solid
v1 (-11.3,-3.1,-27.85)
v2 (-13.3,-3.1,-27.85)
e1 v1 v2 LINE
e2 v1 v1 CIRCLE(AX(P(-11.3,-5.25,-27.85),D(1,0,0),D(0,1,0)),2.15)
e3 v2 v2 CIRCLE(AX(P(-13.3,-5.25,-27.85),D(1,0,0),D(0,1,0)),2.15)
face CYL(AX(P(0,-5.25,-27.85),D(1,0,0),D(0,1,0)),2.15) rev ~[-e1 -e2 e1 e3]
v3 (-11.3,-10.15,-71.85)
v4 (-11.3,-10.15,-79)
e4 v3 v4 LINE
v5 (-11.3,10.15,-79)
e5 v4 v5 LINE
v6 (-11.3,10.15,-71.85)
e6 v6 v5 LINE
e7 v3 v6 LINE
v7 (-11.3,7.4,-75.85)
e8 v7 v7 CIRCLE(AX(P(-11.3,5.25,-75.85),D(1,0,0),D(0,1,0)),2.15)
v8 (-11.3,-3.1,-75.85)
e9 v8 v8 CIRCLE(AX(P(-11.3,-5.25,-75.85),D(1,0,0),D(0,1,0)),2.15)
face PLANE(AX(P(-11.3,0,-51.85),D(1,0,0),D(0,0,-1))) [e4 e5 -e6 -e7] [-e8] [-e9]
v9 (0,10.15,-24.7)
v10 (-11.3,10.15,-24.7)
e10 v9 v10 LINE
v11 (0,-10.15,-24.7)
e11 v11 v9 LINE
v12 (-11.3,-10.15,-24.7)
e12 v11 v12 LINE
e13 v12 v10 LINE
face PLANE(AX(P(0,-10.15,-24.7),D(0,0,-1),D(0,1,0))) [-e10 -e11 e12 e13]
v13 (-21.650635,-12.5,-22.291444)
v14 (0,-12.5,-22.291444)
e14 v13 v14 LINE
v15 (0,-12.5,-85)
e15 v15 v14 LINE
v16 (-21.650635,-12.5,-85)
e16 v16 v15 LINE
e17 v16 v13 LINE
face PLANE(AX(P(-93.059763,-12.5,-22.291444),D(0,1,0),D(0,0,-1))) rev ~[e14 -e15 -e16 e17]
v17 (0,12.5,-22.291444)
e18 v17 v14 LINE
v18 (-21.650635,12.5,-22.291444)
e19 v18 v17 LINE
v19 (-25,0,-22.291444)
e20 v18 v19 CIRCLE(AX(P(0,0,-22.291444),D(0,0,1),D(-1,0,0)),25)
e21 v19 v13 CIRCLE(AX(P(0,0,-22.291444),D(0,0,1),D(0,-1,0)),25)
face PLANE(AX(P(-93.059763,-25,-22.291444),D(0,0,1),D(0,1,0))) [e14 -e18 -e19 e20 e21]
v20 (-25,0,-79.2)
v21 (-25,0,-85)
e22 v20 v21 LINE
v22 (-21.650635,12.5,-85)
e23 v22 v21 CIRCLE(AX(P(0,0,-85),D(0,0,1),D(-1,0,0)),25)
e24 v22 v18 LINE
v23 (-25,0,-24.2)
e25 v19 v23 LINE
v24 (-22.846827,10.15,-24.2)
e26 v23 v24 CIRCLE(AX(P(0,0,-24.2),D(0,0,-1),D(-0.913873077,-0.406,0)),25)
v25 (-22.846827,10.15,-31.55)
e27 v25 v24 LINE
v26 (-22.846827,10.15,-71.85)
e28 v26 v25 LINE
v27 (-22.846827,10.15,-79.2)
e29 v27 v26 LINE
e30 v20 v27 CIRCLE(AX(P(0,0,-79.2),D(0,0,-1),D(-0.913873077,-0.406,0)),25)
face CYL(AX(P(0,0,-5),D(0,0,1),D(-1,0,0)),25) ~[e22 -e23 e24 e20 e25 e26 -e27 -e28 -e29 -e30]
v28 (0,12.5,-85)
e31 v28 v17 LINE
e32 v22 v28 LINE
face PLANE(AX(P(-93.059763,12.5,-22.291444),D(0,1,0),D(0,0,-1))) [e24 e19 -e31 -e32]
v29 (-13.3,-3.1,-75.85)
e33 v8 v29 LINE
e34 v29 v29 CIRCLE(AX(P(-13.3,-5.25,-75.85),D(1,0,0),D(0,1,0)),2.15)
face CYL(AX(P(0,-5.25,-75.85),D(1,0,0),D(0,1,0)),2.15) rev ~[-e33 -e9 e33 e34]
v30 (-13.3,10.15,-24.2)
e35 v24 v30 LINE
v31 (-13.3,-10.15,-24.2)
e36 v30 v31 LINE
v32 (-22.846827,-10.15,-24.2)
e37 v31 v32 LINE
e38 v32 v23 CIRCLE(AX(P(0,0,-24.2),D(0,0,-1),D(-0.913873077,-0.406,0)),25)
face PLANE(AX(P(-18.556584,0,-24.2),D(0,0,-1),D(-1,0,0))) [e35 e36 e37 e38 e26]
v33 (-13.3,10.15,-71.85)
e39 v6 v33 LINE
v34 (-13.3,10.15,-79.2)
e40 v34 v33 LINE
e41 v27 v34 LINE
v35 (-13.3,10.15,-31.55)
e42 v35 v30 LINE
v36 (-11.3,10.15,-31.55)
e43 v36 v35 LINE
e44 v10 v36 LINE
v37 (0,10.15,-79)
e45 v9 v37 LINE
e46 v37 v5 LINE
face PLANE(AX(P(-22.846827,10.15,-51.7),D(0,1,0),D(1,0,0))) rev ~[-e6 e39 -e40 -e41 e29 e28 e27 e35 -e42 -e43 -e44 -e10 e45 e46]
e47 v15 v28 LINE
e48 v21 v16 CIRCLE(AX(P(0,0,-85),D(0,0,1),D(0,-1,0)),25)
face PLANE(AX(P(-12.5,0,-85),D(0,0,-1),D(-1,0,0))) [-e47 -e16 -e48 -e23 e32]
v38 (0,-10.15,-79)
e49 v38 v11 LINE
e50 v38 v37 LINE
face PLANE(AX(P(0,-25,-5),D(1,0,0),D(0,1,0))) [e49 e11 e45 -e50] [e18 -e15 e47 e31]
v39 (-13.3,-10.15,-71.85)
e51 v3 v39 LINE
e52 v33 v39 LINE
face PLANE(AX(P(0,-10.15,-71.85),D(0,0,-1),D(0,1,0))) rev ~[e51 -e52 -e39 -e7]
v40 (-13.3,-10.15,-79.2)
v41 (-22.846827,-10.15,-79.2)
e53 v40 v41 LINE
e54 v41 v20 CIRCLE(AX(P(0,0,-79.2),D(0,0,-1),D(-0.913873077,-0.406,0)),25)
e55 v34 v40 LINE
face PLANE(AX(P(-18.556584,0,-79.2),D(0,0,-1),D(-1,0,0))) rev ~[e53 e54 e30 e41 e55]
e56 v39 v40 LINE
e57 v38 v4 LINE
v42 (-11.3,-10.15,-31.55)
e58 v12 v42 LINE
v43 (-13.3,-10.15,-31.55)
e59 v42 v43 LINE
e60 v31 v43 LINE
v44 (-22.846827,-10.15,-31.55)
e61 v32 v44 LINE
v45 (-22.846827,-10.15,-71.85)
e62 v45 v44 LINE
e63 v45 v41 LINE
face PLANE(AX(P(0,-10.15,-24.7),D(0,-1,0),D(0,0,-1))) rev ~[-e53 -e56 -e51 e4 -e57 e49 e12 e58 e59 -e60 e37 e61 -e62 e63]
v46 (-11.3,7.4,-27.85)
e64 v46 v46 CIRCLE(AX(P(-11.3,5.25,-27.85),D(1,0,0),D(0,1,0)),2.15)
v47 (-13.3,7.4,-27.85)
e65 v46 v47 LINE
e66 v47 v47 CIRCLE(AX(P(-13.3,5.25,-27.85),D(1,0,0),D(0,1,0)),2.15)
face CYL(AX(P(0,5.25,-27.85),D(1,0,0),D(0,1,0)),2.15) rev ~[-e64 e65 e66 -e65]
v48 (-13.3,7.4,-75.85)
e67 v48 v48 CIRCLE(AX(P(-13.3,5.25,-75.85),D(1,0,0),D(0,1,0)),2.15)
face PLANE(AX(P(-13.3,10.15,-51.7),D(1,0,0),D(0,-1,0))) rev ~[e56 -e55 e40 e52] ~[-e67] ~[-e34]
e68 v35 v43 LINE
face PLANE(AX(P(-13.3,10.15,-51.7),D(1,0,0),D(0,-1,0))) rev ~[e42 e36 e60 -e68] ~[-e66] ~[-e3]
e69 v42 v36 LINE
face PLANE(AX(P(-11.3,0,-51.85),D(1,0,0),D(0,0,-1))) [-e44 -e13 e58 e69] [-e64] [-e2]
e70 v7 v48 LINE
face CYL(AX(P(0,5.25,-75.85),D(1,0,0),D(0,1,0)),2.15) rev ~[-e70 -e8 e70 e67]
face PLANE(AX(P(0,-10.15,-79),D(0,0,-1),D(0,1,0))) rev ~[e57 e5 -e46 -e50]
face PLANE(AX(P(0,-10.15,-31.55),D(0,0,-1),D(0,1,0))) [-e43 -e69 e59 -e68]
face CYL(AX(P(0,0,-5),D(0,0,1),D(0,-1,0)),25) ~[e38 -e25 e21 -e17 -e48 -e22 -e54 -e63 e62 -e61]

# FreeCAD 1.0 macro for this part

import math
import FreeCAD as App
import Part
import Sketcher
Q = App.Units.Quantity


def edges_at(feature, points):
    """Names of the edges that pass closest to the given points."""
    edges = feature.Shape.Edges
    near = lambda p: min(range(len(edges)), key=lambda i: edges[i].distToShape(Part.Vertex(*p))[0])
    return sorted({f"Edge{near(p) + 1}" for p in points})

doc = App.newDocument("Part")
body = doc.addObject("PartDesign::Body", "Body")

sketch1 = doc.addObject("Sketcher::SketchObject", "Sketch")
body.addObject(sketch1)
sketch1.AttachmentSupport = (doc.XY_Plane, [""])
sketch1.MapMode = "FlatFace"
sketch1.addGeometry([
    Part.Circle(App.Vector(0, 0, 0), App.Vector(0, 0, 1), 25),
    Part.LineSegment(App.Vector(14, -14, 0), App.Vector(-14, -14, 0)),
    Part.LineSegment(App.Vector(-14, -14, 0), App.Vector(-14, 14, 0)),
    Part.LineSegment(App.Vector(-14, 14, 0), App.Vector(14, 14, 0)),
    Part.LineSegment(App.Vector(14, 14, 0), App.Vector(14, -14, 0)),
], False)
sketch1.addConstraint([
    Sketcher.Constraint("Coincident", 1, 2, 2, 1),
    Sketcher.Constraint("Coincident", 2, 2, 3, 1),
    Sketcher.Constraint("Coincident", 3, 2, 4, 1),
    Sketcher.Constraint("Coincident", 4, 2, 1, 1),
    Sketcher.Constraint("Horizontal", 1),
    Sketcher.Constraint("Vertical", 2),
    Sketcher.Constraint("Horizontal", 3),
    Sketcher.Constraint("Vertical", 4),
    Sketcher.Constraint("Coincident", 0, 3, -1, 1),
    Sketcher.Constraint("Symmetric", 1, 2, 3, 2, -1, 1),
    Sketcher.Constraint("Equal", 3, 2),
    Sketcher.Constraint("Diameter", 0, Q("50 mm")),
    Sketcher.Constraint("DistanceX", 1, 2, 1, 1, Q("27.5 mm")),
])
pad1 = doc.addObject("PartDesign::Pad", "Pad")
body.addObject(pad1)
pad1.Profile = sketch1
pad1.Length = 55

sketch2 = doc.addObject("Sketcher::SketchObject", "Sketch001")
body.addObject(sketch2)
sketch2.AttachmentSupport = (doc.XY_Plane, [""])
sketch2.MapMode = "FlatFace"
sketch2.AttachmentOffset = App.Placement(App.Vector(0, 0, -5), App.Rotation())
sketch2.addGeometry(Part.Circle(App.Vector(0, 0, 0), App.Vector(0, 0, 1), 25), False)
sketch2.addConstraint([
    Sketcher.Constraint("Coincident", 0, 3, -1, 1),
    Sketcher.Constraint("Diameter", 0, Q("50 mm")),
])
pad2 = doc.addObject("PartDesign::Pad", "Pad001")
body.addObject(pad2)
pad2.Profile = sketch2
pad2.Length = 5

sketch3 = doc.addObject("Sketcher::SketchObject", "Sketch002")
body.addObject(sketch3)
sketch3.AttachmentSupport = (doc.XY_Plane, [""])
sketch3.MapMode = "FlatFace"
sketch3.AttachmentOffset = App.Placement(App.Vector(0, 0, -5), App.Rotation())
sketch3.addGeometry([
    Part.LineSegment(App.Vector(0, 25, 0), App.Vector(0, -25, 0)),
    Part.LineSegment(App.Vector(0, -25, 0), App.Vector(-25, -25, 0)),
    Part.LineSegment(App.Vector(-25, -25, 0), App.Vector(-25, 25, 0)),
    Part.LineSegment(App.Vector(-25, 25, 0), App.Vector(0, 25, 0)),
], False)
sketch3.addConstraint([
    Sketcher.Constraint("Coincident", 0, 2, 1, 1),
    Sketcher.Constraint("Coincident", 1, 2, 2, 1),
    Sketcher.Constraint("Coincident", 2, 2, 3, 1),
    Sketcher.Constraint("Coincident", 3, 2, 0, 1),
    Sketcher.Constraint("Vertical", 0),
    Sketcher.Constraint("Horizontal", 1),
    Sketcher.Constraint("Vertical", 2),
    Sketcher.Constraint("Horizontal", 3),
    Sketcher.Constraint("Symmetric", 0, 2, 3, 2, -1, 1),
    Sketcher.Constraint("DistanceX", 1, 2, 1, 1, Q("25 mm")),
    Sketcher.Constraint("DistanceY", 0, 2, 0, 1, Q("50 mm")),
])
pad3 = doc.addObject("PartDesign::Pad", "Pad002")
body.addObject(pad3)
pad3.Profile = sketch3
pad3.Length = 80
pad3.Reversed = True
doc.recompute()

fillet = doc.addObject("PartDesign::Fillet", "Fillet")
body.addObject(fillet)
fillet.Base = (pad3, edges_at(pad3, [
    (-13.75, 13.75, 27.5),
    (-13.75, -13.75, 27.5),
    (13.75, -13.75, 27.5),
    (13.75, 13.75, 27.5),
]))
fillet.Radius = 2.5
doc.recompute()

fillet2 = doc.addObject("PartDesign::Fillet", "Fillet001")
body.addObject(fillet2)
fillet2.Base = (fillet, edges_at(fillet, [
    (0, 13.75, 55),
    (-13.75, 0, 55),
    (0, -13.75, 55),
    (13.75, 0, 55),
    (-13.018, 13.018, 55),
    (-13.018, -13.018, 55),
    (13.018, -13.018, 55),
    (13.018, 13.018, 55),
]))
fillet2.Radius = 2.5

sketch4 = doc.addObject("Sketcher::SketchObject", "Sketch003")
body.addObject(sketch4)
sketch4.AttachmentSupport = (doc.YZ_Plane, [""])
sketch4.MapMode = "FlatFace"
sketch4.addGeometry([
    Part.LineSegment(App.Vector(10, -25, 0), App.Vector(-10, -25, 0)),
    Part.LineSegment(App.Vector(-10, -25, 0), App.Vector(-10, -79, 0)),
    Part.LineSegment(App.Vector(-10, -79, 0), App.Vector(10, -79, 0)),
    Part.LineSegment(App.Vector(10, -79, 0), App.Vector(10, -25, 0)),
], False)
sketch4.addConstraint([
    Sketcher.Constraint("Coincident", 0, 2, 1, 1),
    Sketcher.Constraint("Coincident", 1, 2, 2, 1),
    Sketcher.Constraint("Coincident", 2, 2, 3, 1),
    Sketcher.Constraint("Coincident", 3, 2, 0, 1),
    Sketcher.Constraint("Horizontal", 0),
    Sketcher.Constraint("Vertical", 1),
    Sketcher.Constraint("Horizontal", 2),
    Sketcher.Constraint("Vertical", 3),
    Sketcher.Constraint("DistanceX", 0, 2, 0, 1, Q("20.3 mm")),
    Sketcher.Constraint("DistanceY", 1, 2, 1, 1, Q("54.3 mm")),
    Sketcher.Constraint("DistanceY", 1, 2, -1, 1, Q("79 mm")),
    Sketcher.Constraint("DistanceX", 0, 2, -1, 1, Q("10.15 mm")),
])
pocket1 = doc.addObject("PartDesign::Pocket", "Pocket")
body.addObject(pocket1)
pocket1.Profile = sketch4
pocket1.Length = 11.3

sketch5 = doc.addObject("Sketcher::SketchObject", "Sketch004")
body.addObject(sketch5)
sketch5.AttachmentSupport = (doc.YZ_Plane, [""])
sketch5.MapMode = "FlatFace"
sketch5.addGeometry([
    Part.LineSegment(App.Vector(10, -32, 0), App.Vector(-10, -32, 0)),
    Part.LineSegment(App.Vector(-10, -32, 0), App.Vector(-10, -72, 0)),
    Part.LineSegment(App.Vector(-10, -72, 0), App.Vector(10, -72, 0)),
    Part.LineSegment(App.Vector(10, -72, 0), App.Vector(10, -32, 0)),
], False)
sketch5.addConstraint([
    Sketcher.Constraint("Coincident", 0, 2, 1, 1),
    Sketcher.Constraint("Coincident", 1, 2, 2, 1),
    Sketcher.Constraint("Coincident", 2, 2, 3, 1),
    Sketcher.Constraint("Coincident", 3, 2, 0, 1),
    Sketcher.Constraint("Horizontal", 0),
    Sketcher.Constraint("Vertical", 1),
    Sketcher.Constraint("Horizontal", 2),
    Sketcher.Constraint("Vertical", 3),
    Sketcher.Constraint("DistanceX", 0, 2, 0, 1, Q("20.3 mm")),
    Sketcher.Constraint("DistanceY", 1, 2, 1, 1, Q("40.3 mm")),
    Sketcher.Constraint("DistanceX", 0, 2, -1, 1, Q("10.15 mm")),
    Sketcher.Constraint("DistanceY", 0, 2, -1, 1, Q("31.55 mm")),
])
pocket2 = doc.addObject("PartDesign::Pocket", "Pocket001")
body.addObject(pocket2)
pocket2.Profile = sketch5
pocket2.Type = "ThroughAll"

sketch6 = doc.addObject("Sketcher::SketchObject", "Sketch005")
body.addObject(sketch6)
sketch6.AttachmentSupport = (doc.XY_Plane, [""])
sketch6.MapMode = "FlatFace"
sketch6.AttachmentOffset = App.Placement(App.Vector(0, 0, -5), App.Rotation())
sketch6.addGeometry([
    Part.LineSegment(App.Vector(-25, -25, 0), App.Vector(0, -25, 0)),
    Part.ArcOfCircle(Part.Circle(App.Vector(0, 0, 0), App.Vector(0, 0, 1), 25), math.radians(180), math.radians(270)),
    Part.LineSegment(App.Vector(-25, 0, 0), App.Vector(-25, -25, 0)),
    Part.LineSegment(App.Vector(-25, 25, 0), App.Vector(-25, 0, 0)),
    Part.ArcOfCircle(Part.Circle(App.Vector(0, 0, 0), App.Vector(0, 0, 1), 25), math.radians(90), math.radians(180)),
    Part.LineSegment(App.Vector(0, 25, 0), App.Vector(-25, 25, 0)),
], False)
sketch6.addConstraint([
    Sketcher.Constraint("Tangent", 0, 2, 1, 2),
    Sketcher.Constraint("Tangent", 1, 1, 2, 1),
    Sketcher.Constraint("Coincident", 2, 2, 0, 1),
    Sketcher.Constraint("Tangent", 3, 2, 4, 2),
    Sketcher.Constraint("Tangent", 4, 1, 5, 1),
    Sketcher.Constraint("Coincident", 5, 2, 3, 1),
    Sketcher.Constraint("Horizontal", 0),
    Sketcher.Constraint("Vertical", 2),
    Sketcher.Constraint("Vertical", 3),
    Sketcher.Constraint("Horizontal", 5),
    Sketcher.Constraint("Coincident", 1, 3, -1, 1),
    Sketcher.Constraint("Coincident", 4, 3, -1, 1),
    Sketcher.Constraint("Equal", 1, 4),
    Sketcher.Constraint("Radius", 1, Q("25 mm")),
])
pocket3 = doc.addObject("PartDesign::Pocket", "Pocket002")
body.addObject(pocket3)
pocket3.Profile = sketch6
pocket3.Type = "ThroughAll"

sketch7 = doc.addObject("Sketcher::SketchObject", "Sketch006")
body.addObject(sketch7)
sketch7.AttachmentSupport = (doc.YZ_Plane, [""])
sketch7.MapMode = "FlatFace"
sketch7.addGeometry([
    Part.Circle(App.Vector(-5.2, -27.9, 0), App.Vector(0, 0, 1), 2.1),
    Part.Circle(App.Vector(5.2, -75.8, 0), App.Vector(0, 0, 1), 2.1),
    Part.Circle(App.Vector(-5.2, -75.8, 0), App.Vector(0, 0, 1), 2.1),
    Part.Circle(App.Vector(5.2, -27.9, 0), App.Vector(0, 0, 1), 2.1),
], False)
sketch7.addConstraint([
    Sketcher.Constraint("Equal", 0, 1),
    Sketcher.Constraint("Equal", 1, 2),
    Sketcher.Constraint("Equal", 2, 3),
    Sketcher.Constraint("Symmetric", 1, 3, 2, 3, -2),
    Sketcher.Constraint("Symmetric", 0, 3, 3, 3, -2),
    Sketcher.Constraint("Vertical", 0, 3, 2, 3),
    Sketcher.Constraint("Diameter", 0, Q("4.3 mm")),
    Sketcher.Constraint("DistanceY", 1, 3, 0, 3, Q("48 mm")),
    Sketcher.Constraint("DistanceX", 0, 3, 1, 3, Q("10.5 mm")),
    Sketcher.Constraint("DistanceY", 0, 3, -1, 1, Q("27.85 mm")),
])
pocket4 = doc.addObject("PartDesign::Pocket", "Pocket003")
body.addObject(pocket4)
pocket4.Profile = sketch7
pocket4.Type = "ThroughAll"

sketch8 = doc.addObject("Sketcher::SketchObject", "Sketch007")
body.addObject(sketch8)
sketch8.AttachmentSupport = (doc.XY_Plane, [""])
sketch8.MapMode = "FlatFace"
sketch8.AttachmentOffset = App.Placement(App.Vector(0, 0, -51.7), App.Rotation())
sketch8.addGeometry([
    Part.LineSegment(App.Vector(-13, 10, 0), App.Vector(-13, -10, 0)),
    Part.LineSegment(App.Vector(-13, -10, 0), App.Vector(-23, -10, 0)),
    Part.ArcOfCircle(Part.Circle(App.Vector(0, 0, 0), App.Vector(0, 0, 1), 25), math.radians(156), math.radians(204)),
    Part.LineSegment(App.Vector(-23, 10, 0), App.Vector(-13, 10, 0)),
], False)
sketch8.addConstraint([
    Sketcher.Constraint("Coincident", 0, 2, 1, 1),
    Sketcher.Constraint("Coincident", 1, 2, 2, 2),
    Sketcher.Constraint("Coincident", 2, 1, 3, 1),
    Sketcher.Constraint("Coincident", 3, 2, 0, 1),
    Sketcher.Constraint("Vertical", 0),
    Sketcher.Constraint("Horizontal", 1),
    Sketcher.Constraint("Horizontal", 3),
    Sketcher.Constraint("Coincident", 2, 3, -1, 1),
    Sketcher.Constraint("Vertical", 1, 2, 2, 1),
    Sketcher.Constraint("Radius", 2, Q("25 mm")),
    Sketcher.Constraint("DistanceY", 0, 2, 0, 1, Q("20.3 mm")),
    Sketcher.Constraint("DistanceX", 0, 2, -1, 1, Q("13.3 mm")),
])
pocket5 = doc.addObject("PartDesign::Pocket", "Pocket004")
body.addObject(pocket5)
pocket5.Profile = sketch8
pocket5.Length = 55
pocket5.Midplane = True

sketch9 = doc.addObject("Sketcher::SketchObject", "Sketch008")
body.addObject(sketch9)
sketch9.AttachmentSupport = (doc.YZ_Plane, [""])
sketch9.MapMode = "FlatFace"
sketch9.addGeometry([
    Part.LineSegment(App.Vector(25, 55, 0), App.Vector(-25, 55, 0)),
    Part.LineSegment(App.Vector(-25, 55, 0), App.Vector(-25, -22, 0)),
    Part.LineSegment(App.Vector(-25, -22, 0), App.Vector(25, -22, 0)),
    Part.LineSegment(App.Vector(25, -22, 0), App.Vector(25, 55, 0)),
], False)
sketch9.addConstraint([
    Sketcher.Constraint("Coincident", 0, 2, 1, 1),
    Sketcher.Constraint("Coincident", 1, 2, 2, 1),
    Sketcher.Constraint("Coincident", 2, 2, 3, 1),
    Sketcher.Constraint("Coincident", 3, 2, 0, 1),
    Sketcher.Constraint("Horizontal", 0),
    Sketcher.Constraint("Vertical", 1),
    Sketcher.Constraint("Horizontal", 2),
    Sketcher.Constraint("Vertical", 3),
    Sketcher.Constraint("DistanceX", 0, 2, 0, 1, Q("50 mm")),
    Sketcher.Constraint("DistanceX", 0, 2, -1, 1, Q("25 mm")),
    Sketcher.Constraint("DistanceY", -1, 1, 0, 2, Q("55 mm")),
    Sketcher.Constraint("DistanceY", 1, 2, 1, 1, Q("77.291444 mm")),
])
pocket6 = doc.addObject("PartDesign::Pocket", "Pocket005")
body.addObject(pocket6)
pocket6.Profile = sketch9
pocket6.Type = "ThroughAll"
pocket6.Midplane = True

sketch10 = doc.addObject("Sketcher::SketchObject", "Sketch009")
body.addObject(sketch10)
sketch10.AttachmentSupport = (doc.YZ_Plane, [""])
sketch10.MapMode = "FlatFace"
sketch10.addGeometry([
    Part.LineSegment(App.Vector(25, -22, 0), App.Vector(12, -22, 0)),
    Part.LineSegment(App.Vector(12, -22, 0), App.Vector(12, -85, 0)),
    Part.LineSegment(App.Vector(12, -85, 0), App.Vector(25, -85, 0)),
    Part.LineSegment(App.Vector(25, -85, 0), App.Vector(25, -22, 0)),
    Part.LineSegment(App.Vector(-12, -22, 0), App.Vector(-25, -22, 0)),
    Part.LineSegment(App.Vector(-25, -22, 0), App.Vector(-25, -85, 0)),
    Part.LineSegment(App.Vector(-25, -85, 0), App.Vector(-12, -85, 0)),
    Part.LineSegment(App.Vector(-12, -85, 0), App.Vector(-12, -22, 0)),
], False)
sketch10.addConstraint([
    Sketcher.Constraint("Coincident", 0, 2, 1, 1),
    Sketcher.Constraint("Coincident", 1, 2, 2, 1),
    Sketcher.Constraint("Coincident", 2, 2, 3, 1),
    Sketcher.Constraint("Coincident", 3, 2, 0, 1),
    Sketcher.Constraint("Coincident", 4, 2, 5, 1),
    Sketcher.Constraint("Coincident", 5, 2, 6, 1),
    Sketcher.Constraint("Coincident", 6, 2, 7, 1),
    Sketcher.Constraint("Coincident", 7, 2, 4, 1),
    Sketcher.Constraint("Horizontal", 0),
    Sketcher.Constraint("Vertical", 1),
    Sketcher.Constraint("Horizontal", 2),
    Sketcher.Constraint("Vertical", 3),
    Sketcher.Constraint("Horizontal", 4),
    Sketcher.Constraint("Vertical", 5),
    Sketcher.Constraint("Horizontal", 6),
    Sketcher.Constraint("Vertical", 7),
    Sketcher.Constraint("Symmetric", 3, 2, 4, 2, -2),
    Sketcher.Constraint("Symmetric", 1, 2, 6, 2, -2),
    Sketcher.Constraint("DistanceX", 0, 2, 0, 1, Q("12.5 mm")),
    Sketcher.Constraint("DistanceY", 1, 2, -1, 1, Q("85 mm")),
    Sketcher.Constraint("DistanceX", -1, 1, 2, 2, Q("25 mm")),
    Sketcher.Constraint("DistanceY", 1, 2, 1, 1, Q("62.708556 mm")),
])
pocket7 = doc.addObject("PartDesign::Pocket", "Pocket006")
body.addObject(pocket7)
pocket7.Profile = sketch10
pocket7.Type = "ThroughAll"
pocket7.Midplane = True

doc.recompute()
